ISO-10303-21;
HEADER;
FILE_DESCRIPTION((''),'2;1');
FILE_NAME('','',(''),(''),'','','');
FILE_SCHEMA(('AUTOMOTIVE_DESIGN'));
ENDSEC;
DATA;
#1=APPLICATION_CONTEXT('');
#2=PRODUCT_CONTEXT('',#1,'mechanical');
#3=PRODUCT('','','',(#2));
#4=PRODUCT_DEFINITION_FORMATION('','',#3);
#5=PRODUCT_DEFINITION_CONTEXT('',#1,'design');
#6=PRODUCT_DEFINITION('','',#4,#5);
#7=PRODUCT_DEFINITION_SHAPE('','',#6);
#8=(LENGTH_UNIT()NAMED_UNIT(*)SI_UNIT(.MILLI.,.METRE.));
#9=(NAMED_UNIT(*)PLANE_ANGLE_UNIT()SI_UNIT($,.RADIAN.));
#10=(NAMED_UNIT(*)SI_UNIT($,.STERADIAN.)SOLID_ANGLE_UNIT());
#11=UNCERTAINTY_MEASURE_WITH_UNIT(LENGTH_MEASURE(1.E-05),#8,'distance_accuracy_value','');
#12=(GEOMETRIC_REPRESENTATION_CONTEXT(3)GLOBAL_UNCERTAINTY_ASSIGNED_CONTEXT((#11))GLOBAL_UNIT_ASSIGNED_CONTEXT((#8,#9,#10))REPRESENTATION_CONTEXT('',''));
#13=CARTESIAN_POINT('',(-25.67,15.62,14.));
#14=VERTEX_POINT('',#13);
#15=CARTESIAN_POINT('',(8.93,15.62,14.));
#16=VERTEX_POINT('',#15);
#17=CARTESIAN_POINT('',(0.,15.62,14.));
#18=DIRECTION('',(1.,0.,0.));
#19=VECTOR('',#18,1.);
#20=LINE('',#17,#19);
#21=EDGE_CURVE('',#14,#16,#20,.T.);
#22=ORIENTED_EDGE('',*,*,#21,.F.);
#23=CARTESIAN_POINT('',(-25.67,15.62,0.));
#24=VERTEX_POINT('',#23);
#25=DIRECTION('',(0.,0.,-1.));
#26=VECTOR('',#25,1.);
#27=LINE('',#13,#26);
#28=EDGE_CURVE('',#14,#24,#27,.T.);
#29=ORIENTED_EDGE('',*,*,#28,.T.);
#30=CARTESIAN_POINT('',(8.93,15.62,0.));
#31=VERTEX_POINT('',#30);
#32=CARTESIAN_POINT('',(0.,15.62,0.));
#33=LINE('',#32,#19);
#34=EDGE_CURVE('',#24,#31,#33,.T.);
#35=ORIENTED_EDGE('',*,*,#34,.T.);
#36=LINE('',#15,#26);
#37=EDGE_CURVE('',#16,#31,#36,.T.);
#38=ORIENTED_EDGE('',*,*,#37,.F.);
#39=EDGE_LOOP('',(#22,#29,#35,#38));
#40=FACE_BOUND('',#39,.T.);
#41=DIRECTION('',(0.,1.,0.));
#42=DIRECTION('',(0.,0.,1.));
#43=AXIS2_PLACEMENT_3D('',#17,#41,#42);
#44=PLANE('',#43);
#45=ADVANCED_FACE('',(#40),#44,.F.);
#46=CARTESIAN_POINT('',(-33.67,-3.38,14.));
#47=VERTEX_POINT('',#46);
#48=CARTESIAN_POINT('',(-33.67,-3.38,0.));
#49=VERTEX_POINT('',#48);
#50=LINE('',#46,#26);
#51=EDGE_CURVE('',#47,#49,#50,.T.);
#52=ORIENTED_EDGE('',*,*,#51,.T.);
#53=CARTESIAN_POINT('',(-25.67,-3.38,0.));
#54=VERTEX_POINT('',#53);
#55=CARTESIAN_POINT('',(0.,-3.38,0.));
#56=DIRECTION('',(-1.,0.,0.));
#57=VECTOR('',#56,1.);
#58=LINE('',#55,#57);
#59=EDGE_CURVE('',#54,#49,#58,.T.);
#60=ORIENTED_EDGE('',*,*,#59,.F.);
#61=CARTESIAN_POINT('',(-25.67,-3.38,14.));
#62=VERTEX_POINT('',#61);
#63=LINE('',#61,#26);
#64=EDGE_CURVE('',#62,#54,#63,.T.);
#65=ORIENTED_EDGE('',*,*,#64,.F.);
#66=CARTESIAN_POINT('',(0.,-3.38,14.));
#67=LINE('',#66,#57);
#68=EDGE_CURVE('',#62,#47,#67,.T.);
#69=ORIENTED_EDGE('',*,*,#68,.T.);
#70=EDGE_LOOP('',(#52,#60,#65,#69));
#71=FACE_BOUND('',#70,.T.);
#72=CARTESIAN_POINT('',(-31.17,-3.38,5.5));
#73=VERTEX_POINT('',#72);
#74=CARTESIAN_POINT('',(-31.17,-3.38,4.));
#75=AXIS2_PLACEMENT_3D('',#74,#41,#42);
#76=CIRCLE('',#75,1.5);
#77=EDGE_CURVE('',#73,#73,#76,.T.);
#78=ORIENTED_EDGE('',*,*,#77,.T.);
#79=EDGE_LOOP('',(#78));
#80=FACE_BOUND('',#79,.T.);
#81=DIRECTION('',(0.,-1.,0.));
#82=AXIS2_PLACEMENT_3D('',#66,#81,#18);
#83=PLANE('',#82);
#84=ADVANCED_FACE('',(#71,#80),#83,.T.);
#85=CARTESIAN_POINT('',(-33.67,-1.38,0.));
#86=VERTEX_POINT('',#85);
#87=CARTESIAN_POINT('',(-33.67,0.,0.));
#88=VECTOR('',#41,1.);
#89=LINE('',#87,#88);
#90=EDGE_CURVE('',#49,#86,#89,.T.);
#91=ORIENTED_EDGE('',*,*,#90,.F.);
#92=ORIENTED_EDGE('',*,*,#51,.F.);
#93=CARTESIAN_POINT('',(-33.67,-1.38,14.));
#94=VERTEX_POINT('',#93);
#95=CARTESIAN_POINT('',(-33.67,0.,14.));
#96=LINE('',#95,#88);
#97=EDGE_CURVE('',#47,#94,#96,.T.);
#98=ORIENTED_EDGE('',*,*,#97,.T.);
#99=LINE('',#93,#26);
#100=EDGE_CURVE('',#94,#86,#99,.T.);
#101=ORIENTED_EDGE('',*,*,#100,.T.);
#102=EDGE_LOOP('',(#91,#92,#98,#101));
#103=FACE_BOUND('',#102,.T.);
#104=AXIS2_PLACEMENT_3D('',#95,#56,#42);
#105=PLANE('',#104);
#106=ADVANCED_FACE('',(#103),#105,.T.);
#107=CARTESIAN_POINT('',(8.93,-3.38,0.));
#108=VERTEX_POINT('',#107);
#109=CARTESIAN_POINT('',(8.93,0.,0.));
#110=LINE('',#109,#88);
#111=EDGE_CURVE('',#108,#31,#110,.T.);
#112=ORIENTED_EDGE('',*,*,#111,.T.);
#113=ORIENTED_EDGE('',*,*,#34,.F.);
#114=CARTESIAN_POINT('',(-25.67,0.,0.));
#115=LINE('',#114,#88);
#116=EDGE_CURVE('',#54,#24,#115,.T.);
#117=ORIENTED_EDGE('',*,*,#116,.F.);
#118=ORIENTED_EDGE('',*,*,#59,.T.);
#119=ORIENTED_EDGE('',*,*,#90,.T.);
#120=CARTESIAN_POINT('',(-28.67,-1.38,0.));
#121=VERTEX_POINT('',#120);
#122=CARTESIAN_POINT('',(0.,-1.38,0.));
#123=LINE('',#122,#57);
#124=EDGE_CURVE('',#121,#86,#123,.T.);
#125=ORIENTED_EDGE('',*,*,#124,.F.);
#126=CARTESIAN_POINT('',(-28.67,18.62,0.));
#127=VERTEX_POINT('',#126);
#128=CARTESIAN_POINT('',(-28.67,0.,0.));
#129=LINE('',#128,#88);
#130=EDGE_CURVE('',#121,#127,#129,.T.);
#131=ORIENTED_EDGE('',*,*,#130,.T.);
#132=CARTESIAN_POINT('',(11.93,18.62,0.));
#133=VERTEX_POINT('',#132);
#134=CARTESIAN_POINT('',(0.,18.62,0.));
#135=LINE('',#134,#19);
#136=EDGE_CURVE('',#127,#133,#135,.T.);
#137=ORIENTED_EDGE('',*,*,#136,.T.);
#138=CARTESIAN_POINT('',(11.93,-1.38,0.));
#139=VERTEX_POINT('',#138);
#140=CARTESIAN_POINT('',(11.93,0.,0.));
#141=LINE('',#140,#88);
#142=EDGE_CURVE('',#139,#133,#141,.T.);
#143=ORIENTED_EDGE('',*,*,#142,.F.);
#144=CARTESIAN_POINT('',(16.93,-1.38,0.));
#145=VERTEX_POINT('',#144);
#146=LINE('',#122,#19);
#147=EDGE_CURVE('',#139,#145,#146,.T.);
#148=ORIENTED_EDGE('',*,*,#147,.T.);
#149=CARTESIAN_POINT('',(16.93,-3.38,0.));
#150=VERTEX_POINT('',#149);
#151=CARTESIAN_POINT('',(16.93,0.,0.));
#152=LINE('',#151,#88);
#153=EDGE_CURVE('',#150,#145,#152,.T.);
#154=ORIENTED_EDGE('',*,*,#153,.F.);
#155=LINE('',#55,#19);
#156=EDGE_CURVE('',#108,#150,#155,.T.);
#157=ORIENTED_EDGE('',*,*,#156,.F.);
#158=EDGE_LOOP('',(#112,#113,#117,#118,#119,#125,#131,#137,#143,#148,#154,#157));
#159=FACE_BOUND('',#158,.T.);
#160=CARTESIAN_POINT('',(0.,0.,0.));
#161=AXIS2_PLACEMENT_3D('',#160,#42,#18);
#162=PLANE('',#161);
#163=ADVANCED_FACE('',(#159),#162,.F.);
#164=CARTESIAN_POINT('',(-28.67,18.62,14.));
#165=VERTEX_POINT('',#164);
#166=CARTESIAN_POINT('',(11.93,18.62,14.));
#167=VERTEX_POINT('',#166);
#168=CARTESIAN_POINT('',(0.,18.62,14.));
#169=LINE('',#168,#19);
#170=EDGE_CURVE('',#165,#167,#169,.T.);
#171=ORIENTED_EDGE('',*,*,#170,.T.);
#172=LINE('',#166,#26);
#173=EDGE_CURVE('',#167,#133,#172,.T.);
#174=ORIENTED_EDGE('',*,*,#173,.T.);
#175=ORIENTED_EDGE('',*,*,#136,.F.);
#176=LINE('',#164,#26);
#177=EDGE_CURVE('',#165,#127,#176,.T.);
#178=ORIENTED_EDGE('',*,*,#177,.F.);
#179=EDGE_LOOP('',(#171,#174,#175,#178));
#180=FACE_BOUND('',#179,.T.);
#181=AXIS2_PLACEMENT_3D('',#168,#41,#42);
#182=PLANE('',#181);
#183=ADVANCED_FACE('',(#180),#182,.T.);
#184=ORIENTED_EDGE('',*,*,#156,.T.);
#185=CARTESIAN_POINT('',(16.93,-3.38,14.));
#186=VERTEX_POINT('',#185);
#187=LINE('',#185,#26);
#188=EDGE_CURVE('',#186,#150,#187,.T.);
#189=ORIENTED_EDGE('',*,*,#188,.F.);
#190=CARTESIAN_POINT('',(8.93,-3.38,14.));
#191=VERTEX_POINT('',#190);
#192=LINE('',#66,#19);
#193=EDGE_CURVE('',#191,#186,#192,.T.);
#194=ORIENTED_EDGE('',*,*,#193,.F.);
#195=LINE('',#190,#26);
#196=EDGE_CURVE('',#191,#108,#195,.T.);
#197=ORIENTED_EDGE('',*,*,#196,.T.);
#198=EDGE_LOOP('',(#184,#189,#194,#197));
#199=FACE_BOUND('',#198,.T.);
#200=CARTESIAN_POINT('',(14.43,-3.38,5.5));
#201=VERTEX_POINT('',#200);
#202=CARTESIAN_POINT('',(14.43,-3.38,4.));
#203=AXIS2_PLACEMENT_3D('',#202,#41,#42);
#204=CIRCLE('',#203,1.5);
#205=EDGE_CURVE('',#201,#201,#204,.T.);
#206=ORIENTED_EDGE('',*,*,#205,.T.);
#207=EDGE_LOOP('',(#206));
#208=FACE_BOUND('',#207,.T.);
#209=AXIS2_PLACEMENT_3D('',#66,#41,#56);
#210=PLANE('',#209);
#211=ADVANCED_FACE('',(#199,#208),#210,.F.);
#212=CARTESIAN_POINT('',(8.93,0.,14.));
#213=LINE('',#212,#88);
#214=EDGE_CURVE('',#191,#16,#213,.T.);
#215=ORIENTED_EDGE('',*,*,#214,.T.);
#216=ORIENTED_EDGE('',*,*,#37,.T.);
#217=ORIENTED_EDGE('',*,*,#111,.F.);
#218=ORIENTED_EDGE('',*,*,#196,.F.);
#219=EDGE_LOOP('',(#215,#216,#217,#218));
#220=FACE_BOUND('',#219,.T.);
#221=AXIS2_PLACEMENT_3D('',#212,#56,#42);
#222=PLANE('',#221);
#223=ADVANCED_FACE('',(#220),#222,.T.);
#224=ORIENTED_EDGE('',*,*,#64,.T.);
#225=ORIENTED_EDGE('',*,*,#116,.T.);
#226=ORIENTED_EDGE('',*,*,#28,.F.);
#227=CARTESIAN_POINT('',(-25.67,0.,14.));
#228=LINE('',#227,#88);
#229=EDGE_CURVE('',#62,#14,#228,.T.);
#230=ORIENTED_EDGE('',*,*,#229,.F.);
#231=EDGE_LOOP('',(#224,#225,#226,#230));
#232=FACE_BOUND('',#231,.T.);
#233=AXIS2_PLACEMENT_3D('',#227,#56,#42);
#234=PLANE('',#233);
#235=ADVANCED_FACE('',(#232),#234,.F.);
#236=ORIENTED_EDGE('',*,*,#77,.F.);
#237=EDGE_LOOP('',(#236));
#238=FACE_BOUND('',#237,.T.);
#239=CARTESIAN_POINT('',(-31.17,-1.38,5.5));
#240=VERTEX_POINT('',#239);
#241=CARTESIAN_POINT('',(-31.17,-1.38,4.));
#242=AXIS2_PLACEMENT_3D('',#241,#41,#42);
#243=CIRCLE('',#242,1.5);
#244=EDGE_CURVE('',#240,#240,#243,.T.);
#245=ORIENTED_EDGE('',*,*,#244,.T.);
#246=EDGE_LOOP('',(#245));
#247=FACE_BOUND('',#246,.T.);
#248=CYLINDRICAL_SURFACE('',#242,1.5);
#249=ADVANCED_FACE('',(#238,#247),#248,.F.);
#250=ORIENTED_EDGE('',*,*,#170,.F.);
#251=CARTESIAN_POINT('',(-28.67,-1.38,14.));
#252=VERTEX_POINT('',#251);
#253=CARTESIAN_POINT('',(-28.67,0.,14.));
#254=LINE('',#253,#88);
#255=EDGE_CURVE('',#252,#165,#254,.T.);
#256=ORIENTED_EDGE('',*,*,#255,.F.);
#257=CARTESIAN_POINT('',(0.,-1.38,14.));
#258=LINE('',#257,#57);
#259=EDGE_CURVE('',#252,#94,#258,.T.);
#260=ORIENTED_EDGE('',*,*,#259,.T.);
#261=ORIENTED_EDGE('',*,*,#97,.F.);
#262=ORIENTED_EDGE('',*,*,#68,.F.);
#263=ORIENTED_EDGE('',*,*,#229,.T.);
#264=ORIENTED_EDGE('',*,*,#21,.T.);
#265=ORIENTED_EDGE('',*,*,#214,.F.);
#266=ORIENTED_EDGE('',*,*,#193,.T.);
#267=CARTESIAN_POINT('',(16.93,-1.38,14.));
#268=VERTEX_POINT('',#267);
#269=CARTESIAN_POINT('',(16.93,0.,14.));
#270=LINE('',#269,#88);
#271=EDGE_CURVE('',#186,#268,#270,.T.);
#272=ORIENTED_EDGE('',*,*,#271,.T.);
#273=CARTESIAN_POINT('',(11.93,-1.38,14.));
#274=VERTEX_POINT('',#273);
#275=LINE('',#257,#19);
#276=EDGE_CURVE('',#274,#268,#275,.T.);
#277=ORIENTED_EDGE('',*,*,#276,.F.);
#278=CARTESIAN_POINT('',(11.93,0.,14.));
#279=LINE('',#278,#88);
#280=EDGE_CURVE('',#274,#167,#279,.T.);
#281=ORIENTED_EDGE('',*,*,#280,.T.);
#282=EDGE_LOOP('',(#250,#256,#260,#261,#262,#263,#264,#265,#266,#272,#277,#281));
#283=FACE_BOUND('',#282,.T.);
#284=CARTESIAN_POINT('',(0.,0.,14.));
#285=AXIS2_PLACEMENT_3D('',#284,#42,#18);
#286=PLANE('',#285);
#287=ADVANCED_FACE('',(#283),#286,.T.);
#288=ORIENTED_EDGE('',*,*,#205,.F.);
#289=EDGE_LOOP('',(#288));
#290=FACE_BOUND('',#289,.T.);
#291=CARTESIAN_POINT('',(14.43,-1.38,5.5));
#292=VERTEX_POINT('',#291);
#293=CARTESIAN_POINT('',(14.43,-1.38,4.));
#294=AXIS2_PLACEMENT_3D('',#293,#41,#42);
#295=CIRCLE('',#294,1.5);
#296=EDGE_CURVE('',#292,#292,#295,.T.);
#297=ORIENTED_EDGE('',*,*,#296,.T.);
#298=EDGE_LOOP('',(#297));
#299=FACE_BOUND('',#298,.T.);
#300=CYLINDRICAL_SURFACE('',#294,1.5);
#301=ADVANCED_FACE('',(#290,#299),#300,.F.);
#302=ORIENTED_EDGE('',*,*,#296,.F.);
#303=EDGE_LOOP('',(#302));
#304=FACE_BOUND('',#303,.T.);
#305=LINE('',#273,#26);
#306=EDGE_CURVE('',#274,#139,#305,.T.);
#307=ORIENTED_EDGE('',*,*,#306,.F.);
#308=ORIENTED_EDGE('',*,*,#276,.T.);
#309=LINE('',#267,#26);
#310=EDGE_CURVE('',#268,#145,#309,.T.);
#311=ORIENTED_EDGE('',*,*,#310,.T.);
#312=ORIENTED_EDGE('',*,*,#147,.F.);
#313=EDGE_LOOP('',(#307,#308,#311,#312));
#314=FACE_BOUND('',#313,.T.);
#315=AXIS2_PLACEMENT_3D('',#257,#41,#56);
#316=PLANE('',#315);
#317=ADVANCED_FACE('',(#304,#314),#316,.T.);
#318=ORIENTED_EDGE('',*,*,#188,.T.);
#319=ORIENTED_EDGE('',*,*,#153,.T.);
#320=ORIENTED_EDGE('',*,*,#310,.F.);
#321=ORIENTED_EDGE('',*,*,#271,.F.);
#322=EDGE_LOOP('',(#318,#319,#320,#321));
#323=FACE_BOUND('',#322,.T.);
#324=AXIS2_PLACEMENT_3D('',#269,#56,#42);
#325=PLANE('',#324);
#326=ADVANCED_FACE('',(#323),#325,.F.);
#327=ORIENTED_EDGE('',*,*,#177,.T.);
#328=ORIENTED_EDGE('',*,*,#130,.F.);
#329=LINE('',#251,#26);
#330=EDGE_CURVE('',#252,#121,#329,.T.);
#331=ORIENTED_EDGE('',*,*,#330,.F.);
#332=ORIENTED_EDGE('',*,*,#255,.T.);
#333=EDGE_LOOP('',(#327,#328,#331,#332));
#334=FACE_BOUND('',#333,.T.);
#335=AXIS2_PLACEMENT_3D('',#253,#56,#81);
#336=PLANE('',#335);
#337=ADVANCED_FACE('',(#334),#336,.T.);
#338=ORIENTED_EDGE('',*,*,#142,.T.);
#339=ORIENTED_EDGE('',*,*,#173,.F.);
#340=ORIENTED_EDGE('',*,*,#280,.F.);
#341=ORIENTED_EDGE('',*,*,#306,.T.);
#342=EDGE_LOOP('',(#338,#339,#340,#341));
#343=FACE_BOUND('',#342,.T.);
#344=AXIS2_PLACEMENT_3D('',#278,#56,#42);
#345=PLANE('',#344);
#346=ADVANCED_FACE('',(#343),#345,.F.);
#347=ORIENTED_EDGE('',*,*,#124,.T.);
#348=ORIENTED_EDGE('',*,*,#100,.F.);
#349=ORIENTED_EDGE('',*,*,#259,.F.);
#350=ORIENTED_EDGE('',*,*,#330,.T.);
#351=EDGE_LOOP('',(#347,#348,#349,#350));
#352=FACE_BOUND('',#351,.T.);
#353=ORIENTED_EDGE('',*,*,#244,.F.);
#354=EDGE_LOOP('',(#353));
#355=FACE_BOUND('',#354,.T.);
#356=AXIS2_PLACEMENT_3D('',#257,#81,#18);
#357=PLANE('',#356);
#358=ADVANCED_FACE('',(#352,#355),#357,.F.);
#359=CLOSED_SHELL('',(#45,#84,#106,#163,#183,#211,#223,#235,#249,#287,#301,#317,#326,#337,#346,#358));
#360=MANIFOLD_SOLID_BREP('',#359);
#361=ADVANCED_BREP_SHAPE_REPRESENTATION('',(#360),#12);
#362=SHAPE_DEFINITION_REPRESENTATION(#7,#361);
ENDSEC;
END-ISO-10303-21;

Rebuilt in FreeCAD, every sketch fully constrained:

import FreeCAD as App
import Part
import Sketcher
from FreeCAD import Vector

doc = App.newDocument("Part")
body = doc.addObject("PartDesign::Body", "Body")

# Sketch on XY plane
sketch1 = doc.addObject("Sketcher::SketchObject", "Sketch")
body.addObject(sketch1)
sketch1.AttachmentSupport = (doc.XY_Plane, [""])
sketch1.MapMode = "FlatFace"
sketch1.addGeometry(Part.LineSegment(Vector(16.9, -3.4, 0), Vector(16.9, -1.4, 0)), False)
sketch1.addGeometry(Part.LineSegment(Vector(16.9, -1.4, 0), Vector(11.9, -1.4, 0)), False)
sketch1.addGeometry(Part.LineSegment(Vector(11.9, -1.4, 0), Vector(11.9, 18.6, 0)), False)
sketch1.addGeometry(Part.LineSegment(Vector(11.9, 18.6, 0), Vector(-28.7, 18.6, 0)), False)
sketch1.addGeometry(Part.LineSegment(Vector(-28.7, 18.6, 0), Vector(-28.7, -1.4, 0)), False)
sketch1.addGeometry(Part.LineSegment(Vector(-28.7, -1.4, 0), Vector(-33.7, -1.4, 0)), False)
sketch1.addGeometry(Part.LineSegment(Vector(-33.7, -1.4, 0), Vector(-33.7, -3.4, 0)), False)
sketch1.addGeometry(Part.LineSegment(Vector(-33.7, -3.4, 0), Vector(-25.7, -3.4, 0)), False)
sketch1.addGeometry(Part.LineSegment(Vector(-25.7, -3.4, 0), Vector(-25.7, 15.6, 0)), False)
sketch1.addGeometry(Part.LineSegment(Vector(-25.7, 15.6, 0), Vector(8.9, 15.6, 0)), False)
sketch1.addGeometry(Part.LineSegment(Vector(8.9, 15.6, 0), Vector(8.9, -3.4, 0)), False)
sketch1.addGeometry(Part.LineSegment(Vector(8.9, -3.4, 0), Vector(16.9, -3.4, 0)), False)
sketch1.addConstraint(Sketcher.Constraint("Coincident", 0, 2, 1, 1))
sketch1.addConstraint(Sketcher.Constraint("Coincident", 1, 2, 2, 1))
sketch1.addConstraint(Sketcher.Constraint("Coincident", 2, 2, 3, 1))
sketch1.addConstraint(Sketcher.Constraint("Coincident", 3, 2, 4, 1))
sketch1.addConstraint(Sketcher.Constraint("Coincident", 4, 2, 5, 1))
sketch1.addConstraint(Sketcher.Constraint("Coincident", 5, 2, 6, 1))
sketch1.addConstraint(Sketcher.Constraint("Coincident", 6, 2, 7, 1))
sketch1.addConstraint(Sketcher.Constraint("Coincident", 7, 2, 8, 1))
sketch1.addConstraint(Sketcher.Constraint("Coincident", 8, 2, 9, 1))
sketch1.addConstraint(Sketcher.Constraint("Coincident", 9, 2, 10, 1))
sketch1.addConstraint(Sketcher.Constraint("Coincident", 10, 2, 11, 1))
sketch1.addConstraint(Sketcher.Constraint("Coincident", 11, 2, 0, 1))
sketch1.addConstraint(Sketcher.Constraint("Vertical", 0))
sketch1.addConstraint(Sketcher.Constraint("Horizontal", 1))
sketch1.addConstraint(Sketcher.Constraint("Vertical", 2))
sketch1.addConstraint(Sketcher.Constraint("Horizontal", 3))
sketch1.addConstraint(Sketcher.Constraint("Vertical", 4))
sketch1.addConstraint(Sketcher.Constraint("Horizontal", 5))
sketch1.addConstraint(Sketcher.Constraint("Vertical", 6))
sketch1.addConstraint(Sketcher.Constraint("Horizontal", 7))
sketch1.addConstraint(Sketcher.Constraint("Vertical", 8))
sketch1.addConstraint(Sketcher.Constraint("Horizontal", 9))
sketch1.addConstraint(Sketcher.Constraint("Vertical", 10))
sketch1.addConstraint(Sketcher.Constraint("Horizontal", 11))
sketch1.addConstraint(Sketcher.Constraint("Horizontal", 1, 2, 4, 2))
sketch1.addConstraint(Sketcher.Constraint("Horizontal", 7, 2, 10, 2))
sketch1.addConstraint(Sketcher.Constraint("Equal", 1, 5))
sketch1.addConstraint(Sketcher.Constraint("Equal", 7, 11))
sketch1.addConstraint(Sketcher.Constraint("DistanceX", 1, 2, 1, 1, 5.0))
sketch1.addConstraint(Sketcher.Constraint("DistanceX", 7, 1, 7, 2, 8.0))
sketch1.addConstraint(Sketcher.Constraint("DistanceY", 0, 1, 0, 2, 2.0))
sketch1.addConstraint(Sketcher.Constraint("DistanceY", 2, 1, 2, 2, 20.0))
sketch1.addConstraint(Sketcher.Constraint("DistanceY", 8, 1, 8, 2, 19.0))
sketch1.addConstraint(Sketcher.Constraint("DistanceX", 3, 2, 3, 1, 40.6))
sketch1.addConstraint(Sketcher.Constraint("DistanceX", -1, 1, 0, 2, 16.93))
sketch1.addConstraint(Sketcher.Constraint("DistanceY", 0, 2, -1, 1, 1.38))
pad1 = doc.addObject("PartDesign::Pad", "Pad")
body.addObject(pad1)
pad1.Profile = sketch1
pad1.Length = 14

# Sketch on XZ plane
sketch2 = doc.addObject("Sketcher::SketchObject", "Sketch001")
body.addObject(sketch2)
sketch2.AttachmentSupport = (doc.XZ_Plane, [""])
sketch2.MapMode = "FlatFace"
sketch2.AttachmentOffset = App.Placement(Vector(0, 0, 1.38), App.Rotation())
sketch2.addGeometry(Part.Circle(Vector(14.4, 4, 0), Vector(0, 0, 1), 1.5), False)
sketch2.addGeometry(Part.Circle(Vector(-31.2, 4, 0), Vector(0, 0, 1), 1.5), False)
sketch2.addConstraint(Sketcher.Constraint("Equal", 0, 1))
sketch2.addConstraint(Sketcher.Constraint("Horizontal", 0, 3, 1, 3))
sketch2.addConstraint(Sketcher.Constraint("Diameter", 0, 3.0))
sketch2.addConstraint(Sketcher.Constraint("DistanceY", -1, 1, 0, 3, 4.0))
sketch2.addConstraint(Sketcher.Constraint("DistanceX", 1, 3, 0, 3, 45.6))
sketch2.addConstraint(Sketcher.Constraint("DistanceX", -1, 1, 0, 3, 14.43))
doc.recompute()
hole = doc.addObject("PartDesign::Hole", "Hole")
body.addObject(hole)
hole.Profile = sketch2
hole.ThreadType = "None"
hole.Diameter = 3
hole.DepthType = "ThroughAll"
hole.Reversed = True

doc.recompute()
